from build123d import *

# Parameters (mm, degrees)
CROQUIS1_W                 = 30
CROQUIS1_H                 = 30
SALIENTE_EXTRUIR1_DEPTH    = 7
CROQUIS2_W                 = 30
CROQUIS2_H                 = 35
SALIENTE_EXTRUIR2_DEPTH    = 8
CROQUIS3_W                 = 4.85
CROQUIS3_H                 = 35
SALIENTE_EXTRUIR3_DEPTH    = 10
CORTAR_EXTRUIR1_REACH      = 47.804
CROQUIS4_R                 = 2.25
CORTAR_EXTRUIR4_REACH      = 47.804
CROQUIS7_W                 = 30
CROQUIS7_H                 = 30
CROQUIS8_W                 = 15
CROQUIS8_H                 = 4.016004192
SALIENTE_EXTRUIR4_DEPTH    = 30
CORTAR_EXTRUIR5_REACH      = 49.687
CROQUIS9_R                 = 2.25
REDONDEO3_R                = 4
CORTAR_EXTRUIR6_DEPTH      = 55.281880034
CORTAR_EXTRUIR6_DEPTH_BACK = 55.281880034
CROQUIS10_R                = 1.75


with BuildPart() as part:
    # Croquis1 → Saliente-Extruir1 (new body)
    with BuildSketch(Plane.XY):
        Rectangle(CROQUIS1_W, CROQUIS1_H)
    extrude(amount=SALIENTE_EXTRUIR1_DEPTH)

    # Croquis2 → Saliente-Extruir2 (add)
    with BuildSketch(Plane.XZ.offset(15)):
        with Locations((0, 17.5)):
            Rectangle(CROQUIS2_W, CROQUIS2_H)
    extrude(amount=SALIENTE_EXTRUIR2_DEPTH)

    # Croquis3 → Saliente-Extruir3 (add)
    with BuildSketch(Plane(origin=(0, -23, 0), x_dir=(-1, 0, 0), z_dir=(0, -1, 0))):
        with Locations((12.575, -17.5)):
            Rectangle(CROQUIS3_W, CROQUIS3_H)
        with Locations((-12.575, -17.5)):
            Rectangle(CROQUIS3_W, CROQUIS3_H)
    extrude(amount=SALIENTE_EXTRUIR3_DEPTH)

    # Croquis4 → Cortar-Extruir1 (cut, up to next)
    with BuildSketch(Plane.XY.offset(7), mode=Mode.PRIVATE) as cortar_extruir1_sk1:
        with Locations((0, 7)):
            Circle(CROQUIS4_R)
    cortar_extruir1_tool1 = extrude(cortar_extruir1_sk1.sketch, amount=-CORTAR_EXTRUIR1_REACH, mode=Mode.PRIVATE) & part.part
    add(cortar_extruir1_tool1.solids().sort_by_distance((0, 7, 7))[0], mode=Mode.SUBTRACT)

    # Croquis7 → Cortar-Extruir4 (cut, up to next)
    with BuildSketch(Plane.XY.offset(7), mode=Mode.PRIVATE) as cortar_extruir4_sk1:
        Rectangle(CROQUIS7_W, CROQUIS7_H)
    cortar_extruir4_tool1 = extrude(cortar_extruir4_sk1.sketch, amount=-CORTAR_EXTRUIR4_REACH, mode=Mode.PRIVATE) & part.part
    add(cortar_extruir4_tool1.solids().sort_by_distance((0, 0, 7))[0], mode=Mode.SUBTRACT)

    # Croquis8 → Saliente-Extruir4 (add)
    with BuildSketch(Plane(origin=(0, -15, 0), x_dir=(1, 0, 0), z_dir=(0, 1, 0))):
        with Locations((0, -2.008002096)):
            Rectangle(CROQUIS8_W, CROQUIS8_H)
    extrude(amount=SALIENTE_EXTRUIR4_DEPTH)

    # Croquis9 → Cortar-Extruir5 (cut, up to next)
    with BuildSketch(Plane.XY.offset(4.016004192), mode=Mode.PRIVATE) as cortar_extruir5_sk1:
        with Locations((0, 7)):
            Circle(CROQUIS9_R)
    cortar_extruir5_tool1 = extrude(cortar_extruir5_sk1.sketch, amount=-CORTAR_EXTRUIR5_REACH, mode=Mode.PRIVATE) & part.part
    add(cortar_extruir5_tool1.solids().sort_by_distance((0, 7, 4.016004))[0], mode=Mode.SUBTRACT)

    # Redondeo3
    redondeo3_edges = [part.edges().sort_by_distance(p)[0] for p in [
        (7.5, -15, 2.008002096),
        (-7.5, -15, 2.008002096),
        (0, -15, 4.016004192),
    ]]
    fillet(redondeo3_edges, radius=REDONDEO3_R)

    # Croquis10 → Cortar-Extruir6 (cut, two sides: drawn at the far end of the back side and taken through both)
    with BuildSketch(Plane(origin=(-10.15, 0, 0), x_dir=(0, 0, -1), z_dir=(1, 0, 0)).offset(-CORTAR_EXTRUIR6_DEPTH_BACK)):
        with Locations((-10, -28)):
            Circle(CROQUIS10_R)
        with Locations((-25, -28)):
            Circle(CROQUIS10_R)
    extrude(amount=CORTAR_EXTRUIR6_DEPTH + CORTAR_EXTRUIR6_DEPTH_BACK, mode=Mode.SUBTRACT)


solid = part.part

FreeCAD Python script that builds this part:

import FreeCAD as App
import Part
import Sketcher


def edges_at(feature, points):
    """Names of the edges that pass closest to the given points."""
    edges = feature.Shape.Edges
    near = lambda p: min(range(len(edges)), key=lambda i: edges[i].distToShape(Part.Vertex(*p))[0])
    return sorted({f"Edge{near(p) + 1}" for p in points})

doc = App.newDocument("Part")
params = doc.addObject("Spreadsheet::Sheet", "Params")
for row, (alias, value) in enumerate([
    ("sketch1_width", "30 mm"),
    ("pad1_length", "7 mm"),
    ("sketch2_width", "30 mm"),
    ("sketch2_height", "35 mm"),
    ("pad2_length", "8 mm"),
    ("sketch3_height", "35 mm"),
    ("sketch3_width", "4.85 mm"),
    ("pad3_length", "10 mm"),
    ("sketch4_diameter", "4.5 mm"),
    ("sketch5_width", "30 mm"),
    ("sketch6_width", "15 mm"),
    ("pad4_length", "30 mm"),
    ("sketch7_diameter", "4.5 mm"),
    ("fillet_radius", "4 mm"),
    ("sketch8_diameter", "3.5 mm"),
], start=1):
    params.set(f"A{row}", alias)
    params.set(f"B{row}", "=" + value)
    params.setAlias(f"B{row}", alias)

body = doc.addObject("PartDesign::Body", "Body")

sketch1 = doc.addObject("Sketcher::SketchObject", "Sketch")
body.addObject(sketch1)
sketch1.AttachmentSupport = (doc.XY_Plane, [""])
sketch1.MapMode = "FlatFace"
sketch1.addGeometry(Part.LineSegment(App.Vector(-15, 15, 0), App.Vector(-15, -15, 0)), False)
sketch1.addGeometry(Part.LineSegment(App.Vector(-15, -15, 0), App.Vector(15, -15, 0)), False)
sketch1.addGeometry(Part.LineSegment(App.Vector(15, -15, 0), App.Vector(15, 15, 0)), False)
sketch1.addGeometry(Part.LineSegment(App.Vector(15, 15, 0), App.Vector(-15, 15, 0)), False)
sketch1.addConstraint(Sketcher.Constraint("Coincident", 0, 2, 1, 1))
sketch1.addConstraint(Sketcher.Constraint("Coincident", 1, 2, 2, 1))
sketch1.addConstraint(Sketcher.Constraint("Coincident", 2, 2, 3, 1))
sketch1.addConstraint(Sketcher.Constraint("Coincident", 3, 2, 0, 1))
sketch1.addConstraint(Sketcher.Constraint("Vertical", 0))
sketch1.addConstraint(Sketcher.Constraint("Horizontal", 1))
sketch1.addConstraint(Sketcher.Constraint("Vertical", 2))
sketch1.addConstraint(Sketcher.Constraint("Horizontal", 3))
sketch1.addConstraint(Sketcher.Constraint("Symmetric", 0, 2, 2, 2, -1, 1))
sketch1.addConstraint(Sketcher.Constraint("Equal", 3, 0))
sketch1.addConstraint(Sketcher.Constraint("DistanceX", 1, 1, 1, 2, 30.0))
sketch1.setExpression("Constraints[10]", "Params.sketch1_width")
pad1 = doc.addObject("PartDesign::Pad", "Pad")
body.addObject(pad1)
pad1.Profile = sketch1
pad1.setExpression("Length", "Params.pad1_length")

sketch2 = doc.addObject("Sketcher::SketchObject", "Sketch001")
body.addObject(sketch2)
sketch2.AttachmentSupport = (doc.XZ_Plane, [""])
sketch2.MapMode = "FlatFace"
sketch2.AttachmentOffset = App.Placement(App.Vector(0, 0, 15), App.Rotation())
sketch2.addGeometry(Part.LineSegment(App.Vector(-15, 35, 0), App.Vector(-15, 0, 0)), False)
sketch2.addGeometry(Part.LineSegment(App.Vector(-15, 0, 0), App.Vector(15, 0, 0)), False)
sketch2.addGeometry(Part.LineSegment(App.Vector(15, 0, 0), App.Vector(15, 35, 0)), False)
sketch2.addGeometry(Part.LineSegment(App.Vector(15, 35, 0), App.Vector(-15, 35, 0)), False)
sketch2.addConstraint(Sketcher.Constraint("Coincident", 0, 2, 1, 1))
sketch2.addConstraint(Sketcher.Constraint("Coincident", 1, 2, 2, 1))
sketch2.addConstraint(Sketcher.Constraint("Coincident", 2, 2, 3, 1))
sketch2.addConstraint(Sketcher.Constraint("Coincident", 3, 2, 0, 1))
sketch2.addConstraint(Sketcher.Constraint("Vertical", 0))
sketch2.addConstraint(Sketcher.Constraint("Horizontal", 1))
sketch2.addConstraint(Sketcher.Constraint("Vertical", 2))
sketch2.addConstraint(Sketcher.Constraint("Horizontal", 3))
sketch2.addConstraint(Sketcher.Constraint("Symmetric", 0, 2, 1, 2, -1, 1))
sketch2.addConstraint(Sketcher.Constraint("DistanceX", 1, 1, 1, 2, 30.0))
sketch2.addConstraint(Sketcher.Constraint("DistanceY", 0, 2, 0, 1, 35.0))
sketch2.setExpression("Constraints[9]", "Params.sketch2_width")
sketch2.setExpression("Constraints[10]", "Params.sketch2_height")
pad2 = doc.addObject("PartDesign::Pad", "Pad001")
body.addObject(pad2)
pad2.Profile = sketch2
pad2.setExpression("Length", "Params.pad2_length")

sketch3 = doc.addObject("Sketcher::SketchObject", "Sketch002")
body.addObject(sketch3)
sketch3.AttachmentSupport = (doc.XZ_Plane, [""])
sketch3.MapMode = "FlatFace"
sketch3.AttachmentOffset = App.Placement(App.Vector(0, 0, 23), App.Rotation())
sketch3.addGeometry(Part.LineSegment(App.Vector(-10.2, 0, 0), App.Vector(-10.2, 35, 0)), False)
sketch3.addGeometry(Part.LineSegment(App.Vector(-10.2, 35, 0), App.Vector(-15, 35, 0)), False)
sketch3.addGeometry(Part.LineSegment(App.Vector(-15, 35, 0), App.Vector(-15, 0, 0)), False)
sketch3.addGeometry(Part.LineSegment(App.Vector(-15, 0, 0), App.Vector(-10.2, 0, 0)), False)
sketch3.addGeometry(Part.LineSegment(App.Vector(15, 0, 0), App.Vector(15, 35, 0)), False)
sketch3.addGeometry(Part.LineSegment(App.Vector(15, 35, 0), App.Vector(10.2, 35, 0)), False)
sketch3.addGeometry(Part.LineSegment(App.Vector(10.2, 35, 0), App.Vector(10.2, 0, 0)), False)
sketch3.addGeometry(Part.LineSegment(App.Vector(10.2, 0, 0), App.Vector(15, 0, 0)), False)
sketch3.addConstraint(Sketcher.Constraint("Coincident", 0, 2, 1, 1))
sketch3.addConstraint(Sketcher.Constraint("Coincident", 1, 2, 2, 1))
sketch3.addConstraint(Sketcher.Constraint("Coincident", 2, 2, 3, 1))
sketch3.addConstraint(Sketcher.Constraint("Coincident", 3, 2, 0, 1))
sketch3.addConstraint(Sketcher.Constraint("Coincident", 4, 2, 5, 1))
sketch3.addConstraint(Sketcher.Constraint("Coincident", 5, 2, 6, 1))
sketch3.addConstraint(Sketcher.Constraint("Coincident", 6, 2, 7, 1))
sketch3.addConstraint(Sketcher.Constraint("Coincident", 7, 2, 4, 1))
sketch3.addConstraint(Sketcher.Constraint("Vertical", 0))
sketch3.addConstraint(Sketcher.Constraint("Horizontal", 1))
sketch3.addConstraint(Sketcher.Constraint("Vertical", 2))
sketch3.addConstraint(Sketcher.Constraint("Horizontal", 3))
sketch3.addConstraint(Sketcher.Constraint("Vertical", 4))
sketch3.addConstraint(Sketcher.Constraint("Horizontal", 5))
sketch3.addConstraint(Sketcher.Constraint("Vertical", 6))
sketch3.addConstraint(Sketcher.Constraint("Horizontal", 7))
sketch3.addConstraint(Sketcher.Constraint("Symmetric", 3, 2, 6, 2, -1, 1))
sketch3.addConstraint(Sketcher.Constraint("Symmetric", 1, 2, 4, 2, -2))
sketch3.addConstraint(Sketcher.Constraint("PointOnObject", 2, 2, -1))
sketch3.addConstraint(Sketcher.Constraint("DistanceY", 0, 1, 0, 2, 35.0))
sketch3.addConstraint(Sketcher.Constraint("DistanceX", 1, 2, -1, 1, 15.0))
sketch3.addConstraint(Sketcher.Constraint("DistanceX", 1, 2, 1, 1, 4.85))
sketch3.setExpression("Constraints[19]", "Params.sketch3_height")
sketch3.setExpression("Constraints[21]", "Params.sketch3_width")
pad3 = doc.addObject("PartDesign::Pad", "Pad002")
body.addObject(pad3)
pad3.Profile = sketch3
pad3.setExpression("Length", "Params.pad3_length")

sketch4 = doc.addObject("Sketcher::SketchObject", "Sketch003")
body.addObject(sketch4)
sketch4.AttachmentSupport = (doc.XY_Plane, [""])
sketch4.MapMode = "FlatFace"
sketch4.AttachmentOffset = App.Placement(App.Vector(0, 0, 7), App.Rotation())
sketch4.addGeometry(Part.Circle(App.Vector(0, 7, 0), App.Vector(0, 0, 1), 2.2), False)
sketch4.addConstraint(Sketcher.Constraint("PointOnObject", 0, 3, -2))
sketch4.addConstraint(Sketcher.Constraint("Diameter", 0, 4.5))
sketch4.addConstraint(Sketcher.Constraint("DistanceY", -1, 1, 0, 3, 7.0))
sketch4.setExpression("Constraints[1]", "Params.sketch4_diameter")
pocket1 = doc.addObject("PartDesign::Pocket", "Pocket")
body.addObject(pocket1)
pocket1.Profile = sketch4
pocket1.Type = "UpToFirst"

sketch5 = doc.addObject("Sketcher::SketchObject", "Sketch004")
body.addObject(sketch5)
sketch5.AttachmentSupport = (doc.XY_Plane, [""])
sketch5.MapMode = "FlatFace"
sketch5.AttachmentOffset = App.Placement(App.Vector(0, 0, 7), App.Rotation())
sketch5.addGeometry(Part.LineSegment(App.Vector(-15, 15, 0), App.Vector(-15, -15, 0)), False)
sketch5.addGeometry(Part.LineSegment(App.Vector(-15, -15, 0), App.Vector(15, -15, 0)), False)
sketch5.addGeometry(Part.LineSegment(App.Vector(15, -15, 0), App.Vector(15, 15, 0)), False)
sketch5.addGeometry(Part.LineSegment(App.Vector(15, 15, 0), App.Vector(-15, 15, 0)), False)
sketch5.addConstraint(Sketcher.Constraint("Coincident", 0, 2, 1, 1))
sketch5.addConstraint(Sketcher.Constraint("Coincident", 1, 2, 2, 1))
sketch5.addConstraint(Sketcher.Constraint("Coincident", 2, 2, 3, 1))
sketch5.addConstraint(Sketcher.Constraint("Coincident", 3, 2, 0, 1))
sketch5.addConstraint(Sketcher.Constraint("Vertical", 0))
sketch5.addConstraint(Sketcher.Constraint("Horizontal", 1))
sketch5.addConstraint(Sketcher.Constraint("Vertical", 2))
sketch5.addConstraint(Sketcher.Constraint("Horizontal", 3))
sketch5.addConstraint(Sketcher.Constraint("Symmetric", 0, 2, 2, 2, -1, 1))
sketch5.addConstraint(Sketcher.Constraint("Equal", 3, 0))
sketch5.addConstraint(Sketcher.Constraint("DistanceX", 1, 1, 1, 2, 30.0))
sketch5.setExpression("Constraints[10]", "Params.sketch5_width")
pocket2 = doc.addObject("PartDesign::Pocket", "Pocket001")
body.addObject(pocket2)
pocket2.Profile = sketch5
pocket2.Type = "UpToFirst"

sketch6 = doc.addObject("Sketcher::SketchObject", "Sketch005")
body.addObject(sketch6)
sketch6.AttachmentSupport = (doc.XZ_Plane, [""])
sketch6.MapMode = "FlatFace"
sketch6.AttachmentOffset = App.Placement(App.Vector(0, 0, 15), App.Rotation())
sketch6.addGeometry(Part.LineSegment(App.Vector(-7.5, 0, 0), App.Vector(-7.5, 4, 0)), False)
sketch6.addGeometry(Part.LineSegment(App.Vector(-7.5, 4, 0), App.Vector(7.5, 4, 0)), False)
sketch6.addGeometry(Part.LineSegment(App.Vector(7.5, 4, 0), App.Vector(7.5, 0, 0)), False)
sketch6.addGeometry(Part.LineSegment(App.Vector(7.5, 0, 0), App.Vector(-7.5, 0, 0)), False)
sketch6.addConstraint(Sketcher.Constraint("Coincident", 0, 2, 1, 1))
sketch6.addConstraint(Sketcher.Constraint("Coincident", 1, 2, 2, 1))
sketch6.addConstraint(Sketcher.Constraint("Coincident", 2, 2, 3, 1))
sketch6.addConstraint(Sketcher.Constraint("Coincident", 3, 2, 0, 1))
sketch6.addConstraint(Sketcher.Constraint("Vertical", 0))
sketch6.addConstraint(Sketcher.Constraint("Horizontal", 1))
sketch6.addConstraint(Sketcher.Constraint("Vertical", 2))
sketch6.addConstraint(Sketcher.Constraint("Horizontal", 3))
sketch6.addConstraint(Sketcher.Constraint("Symmetric", 2, 2, 3, 2, -1, 1))
sketch6.addConstraint(Sketcher.Constraint("DistanceX", 1, 1, 1, 2, 15.0))
sketch6.addConstraint(Sketcher.Constraint("DistanceY", 0, 1, 0, 2, 4.016004))
sketch6.setExpression("Constraints[9]", "Params.sketch6_width")
pad4 = doc.addObject("PartDesign::Pad", "Pad003")
body.addObject(pad4)
pad4.Profile = sketch6
pad4.setExpression("Length", "Params.pad4_length")
pad4.Reversed = True

sketch7 = doc.addObject("Sketcher::SketchObject", "Sketch006")
body.addObject(sketch7)
sketch7.AttachmentSupport = (doc.XY_Plane, [""])
sketch7.MapMode = "FlatFace"
sketch7.AttachmentOffset = App.Placement(App.Vector(0, 0, 4.016004), App.Rotation())
sketch7.addGeometry(Part.Circle(App.Vector(0, 7, 0), App.Vector(0, 0, 1), 2.2), False)
sketch7.addConstraint(Sketcher.Constraint("PointOnObject", 0, 3, -2))
sketch7.addConstraint(Sketcher.Constraint("Diameter", 0, 4.5))
sketch7.addConstraint(Sketcher.Constraint("DistanceY", -1, 1, 0, 3, 7.0))
sketch7.setExpression("Constraints[1]", "Params.sketch7_diameter")
pocket3 = doc.addObject("PartDesign::Pocket", "Pocket002")
body.addObject(pocket3)
pocket3.Profile = sketch7
pocket3.Type = "UpToFirst"
doc.recompute()

fillet = doc.addObject("PartDesign::Fillet", "Fillet")
body.addObject(fillet)
fillet.Base = (pocket3, edges_at(pocket3, [(7.5, -15, 2.008), (-7.5, -15, 2.008), (0, -15, 4.016)]))
fillet.setExpression("Radius", "Params.fillet_radius")

sketch8 = doc.addObject("Sketcher::SketchObject", "Sketch007")
body.addObject(sketch8)
sketch8.AttachmentSupport = (doc.YZ_Plane, [""])
sketch8.MapMode = "FlatFace"
sketch8.AttachmentOffset = App.Placement(App.Vector(0, 0, -10.15), App.Rotation())
sketch8.addGeometry(Part.Circle(App.Vector(-28, 10, 0), App.Vector(0, 0, 1), 1.8), False)
sketch8.addGeometry(Part.Circle(App.Vector(-28, 25, 0), App.Vector(0, 0, 1), 1.8), False)
sketch8.addConstraint(Sketcher.Constraint("Equal", 0, 1))
sketch8.addConstraint(Sketcher.Constraint("Vertical", 0, 3, 1, 3))
sketch8.addConstraint(Sketcher.Constraint("Diameter", 0, 3.5))
sketch8.addConstraint(Sketcher.Constraint("DistanceX", 0, 3, -1, 1, 28.0))
sketch8.addConstraint(Sketcher.Constraint("DistanceY", -1, 1, 0, 3, 10.0))
sketch8.addConstraint(Sketcher.Constraint("DistanceY", -1, 1, 1, 3, 25.0))
sketch8.setExpression("Constraints[2]", "Params.sketch8_diameter")
pocket4 = doc.addObject("PartDesign::Pocket", "Pocket003")
body.addObject(pocket4)
pocket4.Profile = sketch8
pocket4.Type = "ThroughAll"
pocket4.Midplane = True

doc.recompute()
